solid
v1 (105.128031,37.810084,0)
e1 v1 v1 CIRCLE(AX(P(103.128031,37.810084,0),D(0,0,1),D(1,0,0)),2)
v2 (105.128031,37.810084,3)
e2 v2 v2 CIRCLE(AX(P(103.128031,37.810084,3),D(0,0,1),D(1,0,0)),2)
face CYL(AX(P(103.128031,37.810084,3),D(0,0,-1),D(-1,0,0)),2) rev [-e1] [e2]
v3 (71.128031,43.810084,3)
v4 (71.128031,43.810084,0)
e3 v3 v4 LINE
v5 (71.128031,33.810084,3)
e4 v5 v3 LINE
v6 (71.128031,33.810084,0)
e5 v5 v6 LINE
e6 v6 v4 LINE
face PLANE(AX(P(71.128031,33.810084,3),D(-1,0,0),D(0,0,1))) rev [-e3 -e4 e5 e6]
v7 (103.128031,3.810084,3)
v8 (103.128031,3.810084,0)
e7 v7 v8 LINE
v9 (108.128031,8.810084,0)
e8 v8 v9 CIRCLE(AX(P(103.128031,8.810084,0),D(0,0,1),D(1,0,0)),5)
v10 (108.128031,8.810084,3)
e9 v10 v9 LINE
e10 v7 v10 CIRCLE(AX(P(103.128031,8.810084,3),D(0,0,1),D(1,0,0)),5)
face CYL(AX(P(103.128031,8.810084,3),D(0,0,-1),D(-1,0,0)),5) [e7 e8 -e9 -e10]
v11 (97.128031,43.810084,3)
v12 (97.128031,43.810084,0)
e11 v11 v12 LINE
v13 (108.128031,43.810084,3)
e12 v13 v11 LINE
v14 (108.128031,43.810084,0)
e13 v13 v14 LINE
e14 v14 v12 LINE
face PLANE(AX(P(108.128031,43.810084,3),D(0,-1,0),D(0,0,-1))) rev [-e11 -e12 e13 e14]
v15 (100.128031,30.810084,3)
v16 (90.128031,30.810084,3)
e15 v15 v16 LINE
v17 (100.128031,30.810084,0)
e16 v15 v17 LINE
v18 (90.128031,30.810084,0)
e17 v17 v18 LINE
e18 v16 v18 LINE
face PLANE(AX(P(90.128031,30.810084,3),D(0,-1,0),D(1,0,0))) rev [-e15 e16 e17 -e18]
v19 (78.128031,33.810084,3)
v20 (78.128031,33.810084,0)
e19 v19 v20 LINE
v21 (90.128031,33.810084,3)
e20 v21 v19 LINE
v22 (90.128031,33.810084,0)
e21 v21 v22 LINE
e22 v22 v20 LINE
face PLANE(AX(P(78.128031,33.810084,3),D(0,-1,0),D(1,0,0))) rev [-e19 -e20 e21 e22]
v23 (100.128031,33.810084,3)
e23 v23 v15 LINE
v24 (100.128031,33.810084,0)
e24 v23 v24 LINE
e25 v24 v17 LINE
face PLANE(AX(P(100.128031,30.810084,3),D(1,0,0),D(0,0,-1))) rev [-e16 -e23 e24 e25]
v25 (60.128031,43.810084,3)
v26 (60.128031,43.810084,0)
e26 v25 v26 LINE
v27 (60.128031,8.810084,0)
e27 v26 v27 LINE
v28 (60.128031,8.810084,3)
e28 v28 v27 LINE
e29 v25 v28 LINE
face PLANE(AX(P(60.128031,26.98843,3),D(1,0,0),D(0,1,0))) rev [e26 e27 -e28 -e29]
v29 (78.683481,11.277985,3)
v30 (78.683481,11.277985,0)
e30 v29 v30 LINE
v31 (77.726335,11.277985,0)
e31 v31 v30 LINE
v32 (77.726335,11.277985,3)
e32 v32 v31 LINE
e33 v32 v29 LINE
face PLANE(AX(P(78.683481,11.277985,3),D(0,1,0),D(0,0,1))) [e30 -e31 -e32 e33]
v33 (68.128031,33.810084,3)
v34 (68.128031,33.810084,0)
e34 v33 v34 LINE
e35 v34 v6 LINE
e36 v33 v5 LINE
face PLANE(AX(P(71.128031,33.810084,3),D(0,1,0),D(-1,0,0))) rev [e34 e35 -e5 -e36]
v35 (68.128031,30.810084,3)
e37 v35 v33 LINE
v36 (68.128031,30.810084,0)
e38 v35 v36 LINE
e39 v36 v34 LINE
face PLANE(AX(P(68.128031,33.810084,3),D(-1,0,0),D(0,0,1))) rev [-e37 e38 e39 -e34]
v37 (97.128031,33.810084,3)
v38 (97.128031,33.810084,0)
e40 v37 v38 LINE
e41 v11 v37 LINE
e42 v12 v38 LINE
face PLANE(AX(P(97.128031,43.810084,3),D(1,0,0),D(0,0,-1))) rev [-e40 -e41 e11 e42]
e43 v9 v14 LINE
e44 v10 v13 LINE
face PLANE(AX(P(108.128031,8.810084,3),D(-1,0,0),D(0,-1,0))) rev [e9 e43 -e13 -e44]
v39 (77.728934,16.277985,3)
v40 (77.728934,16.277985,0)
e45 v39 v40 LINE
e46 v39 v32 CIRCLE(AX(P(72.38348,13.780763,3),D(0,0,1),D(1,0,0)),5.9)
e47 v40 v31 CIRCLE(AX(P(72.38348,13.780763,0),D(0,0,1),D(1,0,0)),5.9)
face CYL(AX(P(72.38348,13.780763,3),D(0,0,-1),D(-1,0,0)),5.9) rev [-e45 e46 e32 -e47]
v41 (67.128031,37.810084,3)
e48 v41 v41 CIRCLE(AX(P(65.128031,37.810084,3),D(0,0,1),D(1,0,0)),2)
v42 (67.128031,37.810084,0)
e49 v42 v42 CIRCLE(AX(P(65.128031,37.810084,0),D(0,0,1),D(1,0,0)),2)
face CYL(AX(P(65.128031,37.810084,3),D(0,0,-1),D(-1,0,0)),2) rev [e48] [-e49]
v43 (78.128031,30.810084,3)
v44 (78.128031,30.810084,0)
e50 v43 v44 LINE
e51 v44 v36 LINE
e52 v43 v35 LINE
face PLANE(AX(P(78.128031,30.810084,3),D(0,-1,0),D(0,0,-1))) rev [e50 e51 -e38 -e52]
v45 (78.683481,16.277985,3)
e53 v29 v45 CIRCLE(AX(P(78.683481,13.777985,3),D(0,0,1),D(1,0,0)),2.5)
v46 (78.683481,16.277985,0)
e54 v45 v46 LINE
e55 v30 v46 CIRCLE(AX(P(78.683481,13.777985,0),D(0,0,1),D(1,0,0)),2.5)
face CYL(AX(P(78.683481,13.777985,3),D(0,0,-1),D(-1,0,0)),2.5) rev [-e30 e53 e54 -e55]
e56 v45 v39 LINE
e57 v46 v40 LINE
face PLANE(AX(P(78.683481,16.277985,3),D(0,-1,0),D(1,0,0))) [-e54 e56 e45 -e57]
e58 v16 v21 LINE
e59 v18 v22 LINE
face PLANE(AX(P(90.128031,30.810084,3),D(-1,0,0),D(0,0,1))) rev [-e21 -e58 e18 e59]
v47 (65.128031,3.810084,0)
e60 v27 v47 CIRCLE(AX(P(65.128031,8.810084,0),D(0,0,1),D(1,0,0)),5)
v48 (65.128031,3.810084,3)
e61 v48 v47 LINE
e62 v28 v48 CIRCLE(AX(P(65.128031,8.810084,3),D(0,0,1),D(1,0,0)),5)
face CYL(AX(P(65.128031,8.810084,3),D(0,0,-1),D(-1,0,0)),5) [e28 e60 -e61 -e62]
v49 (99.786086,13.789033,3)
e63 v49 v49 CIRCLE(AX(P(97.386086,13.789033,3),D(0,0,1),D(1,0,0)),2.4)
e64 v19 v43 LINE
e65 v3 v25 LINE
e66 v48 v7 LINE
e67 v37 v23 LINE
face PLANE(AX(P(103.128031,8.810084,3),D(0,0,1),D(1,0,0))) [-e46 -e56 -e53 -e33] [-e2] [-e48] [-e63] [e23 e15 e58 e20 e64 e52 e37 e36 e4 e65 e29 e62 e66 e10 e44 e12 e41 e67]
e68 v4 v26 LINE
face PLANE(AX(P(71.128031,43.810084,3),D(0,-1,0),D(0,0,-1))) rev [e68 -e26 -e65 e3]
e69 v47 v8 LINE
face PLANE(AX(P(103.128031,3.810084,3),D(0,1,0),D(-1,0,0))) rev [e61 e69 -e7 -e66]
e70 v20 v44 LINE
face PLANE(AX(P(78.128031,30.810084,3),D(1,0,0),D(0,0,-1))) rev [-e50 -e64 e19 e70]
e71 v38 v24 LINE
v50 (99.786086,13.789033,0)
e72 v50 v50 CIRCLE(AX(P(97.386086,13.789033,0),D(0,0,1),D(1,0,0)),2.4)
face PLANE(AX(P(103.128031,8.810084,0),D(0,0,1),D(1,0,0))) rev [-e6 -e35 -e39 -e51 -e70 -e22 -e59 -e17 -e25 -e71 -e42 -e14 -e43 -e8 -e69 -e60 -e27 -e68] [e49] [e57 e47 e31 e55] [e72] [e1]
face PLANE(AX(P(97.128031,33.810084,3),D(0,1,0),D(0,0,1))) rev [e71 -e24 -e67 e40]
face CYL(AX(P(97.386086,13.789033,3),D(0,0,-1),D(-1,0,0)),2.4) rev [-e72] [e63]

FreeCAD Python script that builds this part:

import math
import FreeCAD as App
import Part
import Sketcher

V = App.Vector

doc = App.newDocument("Part")
body = doc.addObject("PartDesign::Body", "Body")

sketch1 = body.newObject("Sketcher::SketchObject", "Sketch")
sketch1.AttachmentSupport = (doc.getObject("XY_Plane"), [""])
sketch1.MapMode = "FlatFace"
sketch1.addGeometry([
    Part.LineSegment(V(60.1, 43.8, 0), V(60.1, 8.8, 0)),
    Part.ArcOfCircle(Part.Circle(V(65.1, 8.8, 0), V(0, 0, 1), 5), math.radians(180), math.radians(270)),
    Part.LineSegment(V(65.1, 3.8, 0), V(103.1, 3.8, 0)),
    Part.ArcOfCircle(Part.Circle(V(103.1, 8.8, 0), V(0, 0, 1), 5), math.radians(-90), math.radians(0)),
    Part.LineSegment(V(108.1, 8.8, 0), V(108.1, 43.8, 0)),
    Part.LineSegment(V(108.1, 43.8, 0), V(97.1, 43.8, 0)),
    Part.LineSegment(V(97.1, 43.8, 0), V(97.1, 33.8, 0)),
    Part.LineSegment(V(97.1, 33.8, 0), V(100.1, 33.8, 0)),
    Part.LineSegment(V(100.1, 33.8, 0), V(100.1, 30.8, 0)),
    Part.LineSegment(V(100.1, 30.8, 0), V(90.1, 30.8, 0)),
    Part.LineSegment(V(90.1, 30.8, 0), V(90.1, 33.8, 0)),
    Part.LineSegment(V(90.1, 33.8, 0), V(78.1, 33.8, 0)),
    Part.LineSegment(V(78.1, 33.8, 0), V(78.1, 30.8, 0)),
    Part.LineSegment(V(78.1, 30.8, 0), V(68.1, 30.8, 0)),
    Part.LineSegment(V(68.1, 30.8, 0), V(68.1, 33.8, 0)),
    Part.LineSegment(V(68.1, 33.8, 0), V(71.1, 33.8, 0)),
    Part.LineSegment(V(71.1, 33.8, 0), V(71.1, 43.8, 0)),
    Part.LineSegment(V(71.1, 43.8, 0), V(60.1, 43.8, 0)),
    Part.ArcOfCircle(Part.Circle(V(78.7, 13.8, 0), V(0, 0, 1), 2.5), math.radians(-90), math.radians(90)),
    Part.LineSegment(V(78.7, 11.3, 0), V(77.7, 11.3, 0)),
    Part.ArcOfCircle(Part.Circle(V(72.4, 13.8, 0), V(0, 0, 1), 5.9), math.radians(25), math.radians(335)),
    Part.LineSegment(V(77.7, 16.3, 0), V(78.7, 16.3, 0)),
    Part.Circle(V(97.4, 13.8, 0), V(0, 0, 1), 2.4),
    Part.Circle(V(65.1, 37.8, 0), V(0, 0, 1), 2),
    Part.Circle(V(103.1, 37.8, 0), V(0, 0, 1), 2),
], False)
sketch1.addConstraint([
    Sketcher.Constraint("Tangent", 0, 2, 1, 1),
    Sketcher.Constraint("Tangent", 1, 2, 2, 1),
    Sketcher.Constraint("Tangent", 2, 2, 3, 1),
    Sketcher.Constraint("Tangent", 3, 2, 4, 1),
    Sketcher.Constraint("Coincident", 4, 2, 5, 1),
    Sketcher.Constraint("Coincident", 5, 2, 6, 1),
    Sketcher.Constraint("Coincident", 6, 2, 7, 1),
    Sketcher.Constraint("Coincident", 7, 2, 8, 1),
    Sketcher.Constraint("Coincident", 8, 2, 9, 1),
    Sketcher.Constraint("Coincident", 9, 2, 10, 1),
    Sketcher.Constraint("Coincident", 10, 2, 11, 1),
    Sketcher.Constraint("Coincident", 11, 2, 12, 1),
    Sketcher.Constraint("Coincident", 12, 2, 13, 1),
    Sketcher.Constraint("Coincident", 13, 2, 14, 1),
    Sketcher.Constraint("Coincident", 14, 2, 15, 1),
    Sketcher.Constraint("Coincident", 15, 2, 16, 1),
    Sketcher.Constraint("Coincident", 16, 2, 17, 1),
    Sketcher.Constraint("Coincident", 17, 2, 0, 1),
    Sketcher.Constraint("Tangent", 18, 1, 19, 1),
    Sketcher.Constraint("Coincident", 19, 2, 20, 2),
    Sketcher.Constraint("Coincident", 20, 1, 21, 1),
    Sketcher.Constraint("Tangent", 21, 2, 18, 2),
    Sketcher.Constraint("Vertical", 0),
    Sketcher.Constraint("Horizontal", 2),
    Sketcher.Constraint("Vertical", 4),
    Sketcher.Constraint("Horizontal", 5),
    Sketcher.Constraint("Vertical", 6),
    Sketcher.Constraint("Horizontal", 7),
    Sketcher.Constraint("Vertical", 8),
    Sketcher.Constraint("Horizontal", 9),
    Sketcher.Constraint("Vertical", 10),
    Sketcher.Constraint("Horizontal", 11),
    Sketcher.Constraint("Vertical", 12),
    Sketcher.Constraint("Horizontal", 13),
    Sketcher.Constraint("Vertical", 14),
    Sketcher.Constraint("Horizontal", 15),
    Sketcher.Constraint("Vertical", 16),
    Sketcher.Constraint("Horizontal", 17),
    Sketcher.Constraint("Horizontal", 19),
    Sketcher.Constraint("Horizontal", 21),
    Sketcher.Constraint("Equal", 1, 3),
    Sketcher.Constraint("Equal", 23, 24),
    Sketcher.Constraint("Horizontal", 23, 3, 24, 3),
    Sketcher.Constraint("Horizontal", 7, 2, 10, 2),
    Sketcher.Constraint("Horizontal", 9, 2, 12, 2),
    Sketcher.Constraint("Horizontal", 11, 2, 14, 2),
    Sketcher.Constraint("Horizontal", 5, 2, 16, 2),
    Sketcher.Constraint("Vertical", 1, 3, 23, 3),
    Sketcher.Constraint("Vertical", 3, 3, 24, 3),
    Sketcher.Constraint("Equal", 9, 13),
    Sketcher.Constraint("Equal", 7, 15),
    Sketcher.Constraint("Equal", 5, 17),
    Sketcher.Constraint("Equal", 13, 6),
    Sketcher.Constraint("Equal", 15, 8),
    Sketcher.Constraint("Diameter", 23, 4.0),
    Sketcher.Constraint("Radius", 1, 5.0),
    Sketcher.Constraint("Diameter", 22, 4.8),
    Sketcher.Constraint("Radius", 18, 2.5),
    Sketcher.Constraint("Radius", 20, 5.9),
    Sketcher.Constraint("DistanceX", 2, 1, 2, 2, 38.0),
    Sketcher.Constraint("DistanceX", 5, 2, 5, 1, 11.0),
    Sketcher.Constraint("DistanceX", 7, 1, 7, 2, 3.0),
    Sketcher.Constraint("DistanceX", 9, 2, 9, 1, 10.0),
    Sketcher.Constraint("DistanceY", 0, 2, 0, 1, 35.0),
    Sketcher.Constraint("DistanceY", 1, 3, 23, 3, 29.0),
    Sketcher.Constraint("DistanceX", 20, 3, 18, 3, 6.300002),
    Sketcher.Constraint("DistanceY", 1, 3, 18, 3, 4.9679),
    Sketcher.Constraint("DistanceX", 19, 2, 20, 1, 0.002599),
    Sketcher.Constraint("DistanceX", -1, 1, 1, 3, 65.128031),
    Sketcher.Constraint("DistanceX", -1, 1, 18, 3, 78.683481),
    Sketcher.Constraint("DistanceY", 3, 3, 22, 3, 4.978948),
    Sketcher.Constraint("DistanceY", -1, 1, 1, 3, 8.810084),
    Sketcher.Constraint("DistanceX", -1, 1, 22, 3, 97.386086),
])
pad1 = body.newObject("PartDesign::Pad", "Pad")
pad1.Profile = sketch1
pad1.Length = 3

doc.recompute()
